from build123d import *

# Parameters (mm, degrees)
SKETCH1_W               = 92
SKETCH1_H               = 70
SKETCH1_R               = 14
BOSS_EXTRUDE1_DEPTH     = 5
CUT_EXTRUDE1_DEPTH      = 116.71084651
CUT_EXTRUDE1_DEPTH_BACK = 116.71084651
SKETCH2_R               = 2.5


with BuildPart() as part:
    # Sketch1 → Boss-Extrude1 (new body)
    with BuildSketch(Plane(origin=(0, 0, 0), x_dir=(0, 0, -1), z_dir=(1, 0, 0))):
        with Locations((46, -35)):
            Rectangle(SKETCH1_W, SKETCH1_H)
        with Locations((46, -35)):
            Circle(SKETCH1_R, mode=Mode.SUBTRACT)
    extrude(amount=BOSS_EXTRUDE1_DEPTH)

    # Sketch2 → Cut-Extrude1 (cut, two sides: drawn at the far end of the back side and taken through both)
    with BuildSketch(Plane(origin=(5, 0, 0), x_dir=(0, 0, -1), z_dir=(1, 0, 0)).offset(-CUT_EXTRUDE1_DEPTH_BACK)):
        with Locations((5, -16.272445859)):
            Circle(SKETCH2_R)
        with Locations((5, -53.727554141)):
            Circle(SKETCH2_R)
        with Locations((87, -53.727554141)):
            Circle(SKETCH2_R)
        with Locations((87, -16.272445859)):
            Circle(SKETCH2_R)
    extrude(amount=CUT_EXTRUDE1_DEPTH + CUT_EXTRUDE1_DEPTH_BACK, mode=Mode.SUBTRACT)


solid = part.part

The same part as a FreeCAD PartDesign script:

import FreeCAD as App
import Part
import Sketcher
Q = App.Units.Quantity

doc = App.newDocument("Part")
body = doc.addObject("PartDesign::Body", "Body")

# Sketch on YZ plane
sketch1 = body.newObject("Sketcher::SketchObject", "Sketch")
sketch1.AttachmentSupport = (doc.getObject("YZ_Plane"), [""])
sketch1.MapMode = "FlatFace"
sketch1.addGeometry(Part.LineSegment(App.Vector(0, 0, 0), App.Vector(-70, 0, 0)), False)
sketch1.addGeometry(Part.LineSegment(App.Vector(-70, 0, 0), App.Vector(-70, -92, 0)), False)
sketch1.addGeometry(Part.LineSegment(App.Vector(-70, -92, 0), App.Vector(0, -92, 0)), False)
sketch1.addGeometry(Part.LineSegment(App.Vector(0, -92, 0), App.Vector(0, 0, 0)), False)
sketch1.addGeometry(Part.Circle(App.Vector(-35, -46, 0), App.Vector(0, 0, 1), 14), False)
sketch1.addConstraint(Sketcher.Constraint("Coincident", 0, 2, 1, 1))
sketch1.addConstraint(Sketcher.Constraint("Coincident", 1, 2, 2, 1))
sketch1.addConstraint(Sketcher.Constraint("Coincident", 2, 2, 3, 1))
sketch1.addConstraint(Sketcher.Constraint("Coincident", 3, 2, 0, 1))
sketch1.addConstraint(Sketcher.Constraint("Horizontal", 0))
sketch1.addConstraint(Sketcher.Constraint("Vertical", 1))
sketch1.addConstraint(Sketcher.Constraint("Horizontal", 2))
sketch1.addConstraint(Sketcher.Constraint("Vertical", 3))
sketch1.addConstraint(Sketcher.Constraint("Coincident", 3, 2, -1, 1))
sketch1.addConstraint(Sketcher.Constraint("Diameter", 4, Q("28 mm")))
sketch1.addConstraint(Sketcher.Constraint("DistanceX", 0, 2, 0, 1, Q("70 mm")))
sketch1.addConstraint(Sketcher.Constraint("DistanceY", 1, 2, 1, 1, Q("92 mm")))
sketch1.addConstraint(Sketcher.Constraint("DistanceX", 4, 3, -1, 1, Q("35 mm")))
sketch1.addConstraint(Sketcher.Constraint("DistanceY", 4, 3, -1, 1, Q("46 mm")))
pad1 = body.newObject("PartDesign::Pad", "Pad")
pad1.Profile = sketch1
pad1.Length = 5

# Sketch on YZ plane
sketch2 = body.newObject("Sketcher::SketchObject", "Sketch001")
sketch2.AttachmentSupport = (doc.getObject("YZ_Plane"), [""])
sketch2.MapMode = "FlatFace"
sketch2.AttachmentOffset = App.Placement(App.Vector(0, 0, 5), App.Rotation())
sketch2.addGeometry(Part.Circle(App.Vector(-16.3, -5, 0), App.Vector(0, 0, 1), 2.5), False)
sketch2.addGeometry(Part.Circle(App.Vector(-53.7, -5, 0), App.Vector(0, 0, 1), 2.5), False)
sketch2.addGeometry(Part.Circle(App.Vector(-53.7, -87, 0), App.Vector(0, 0, 1), 2.5), False)
sketch2.addGeometry(Part.Circle(App.Vector(-16.3, -87, 0), App.Vector(0, 0, 1), 2.5), False)
sketch2.addConstraint(Sketcher.Constraint("Equal", 0, 1))
sketch2.addConstraint(Sketcher.Constraint("Equal", 1, 2))
sketch2.addConstraint(Sketcher.Constraint("Equal", 2, 3))
sketch2.addConstraint(Sketcher.Constraint("Horizontal", 0, 3, 1, 3))
sketch2.addConstraint(Sketcher.Constraint("Horizontal", 2, 3, 3, 3))
sketch2.addConstraint(Sketcher.Constraint("Vertical", 1, 3, 2, 3))
sketch2.addConstraint(Sketcher.Constraint("Vertical", 0, 3, 3, 3))
sketch2.addConstraint(Sketcher.Constraint("Diameter", 0, Q("5 mm")))
sketch2.addConstraint(Sketcher.Constraint("DistanceY", 0, 3, -1, 1, Q("5 mm")))
sketch2.addConstraint(Sketcher.Constraint("DistanceY", 2, 3, -1, 1, Q("87 mm")))
sketch2.addConstraint(Sketcher.Constraint("DistanceX", 1, 3, 0, 3, Q("37.455108 mm")))
sketch2.addConstraint(Sketcher.Constraint("DistanceX", 0, 3, -1, 1, Q("16.272446 mm")))
pocket1 = body.newObject("PartDesign::Pocket", "Pocket")
pocket1.Profile = sketch2
pocket1.Type = "ThroughAll"
pocket1.Midplane = True

doc.recompute()
